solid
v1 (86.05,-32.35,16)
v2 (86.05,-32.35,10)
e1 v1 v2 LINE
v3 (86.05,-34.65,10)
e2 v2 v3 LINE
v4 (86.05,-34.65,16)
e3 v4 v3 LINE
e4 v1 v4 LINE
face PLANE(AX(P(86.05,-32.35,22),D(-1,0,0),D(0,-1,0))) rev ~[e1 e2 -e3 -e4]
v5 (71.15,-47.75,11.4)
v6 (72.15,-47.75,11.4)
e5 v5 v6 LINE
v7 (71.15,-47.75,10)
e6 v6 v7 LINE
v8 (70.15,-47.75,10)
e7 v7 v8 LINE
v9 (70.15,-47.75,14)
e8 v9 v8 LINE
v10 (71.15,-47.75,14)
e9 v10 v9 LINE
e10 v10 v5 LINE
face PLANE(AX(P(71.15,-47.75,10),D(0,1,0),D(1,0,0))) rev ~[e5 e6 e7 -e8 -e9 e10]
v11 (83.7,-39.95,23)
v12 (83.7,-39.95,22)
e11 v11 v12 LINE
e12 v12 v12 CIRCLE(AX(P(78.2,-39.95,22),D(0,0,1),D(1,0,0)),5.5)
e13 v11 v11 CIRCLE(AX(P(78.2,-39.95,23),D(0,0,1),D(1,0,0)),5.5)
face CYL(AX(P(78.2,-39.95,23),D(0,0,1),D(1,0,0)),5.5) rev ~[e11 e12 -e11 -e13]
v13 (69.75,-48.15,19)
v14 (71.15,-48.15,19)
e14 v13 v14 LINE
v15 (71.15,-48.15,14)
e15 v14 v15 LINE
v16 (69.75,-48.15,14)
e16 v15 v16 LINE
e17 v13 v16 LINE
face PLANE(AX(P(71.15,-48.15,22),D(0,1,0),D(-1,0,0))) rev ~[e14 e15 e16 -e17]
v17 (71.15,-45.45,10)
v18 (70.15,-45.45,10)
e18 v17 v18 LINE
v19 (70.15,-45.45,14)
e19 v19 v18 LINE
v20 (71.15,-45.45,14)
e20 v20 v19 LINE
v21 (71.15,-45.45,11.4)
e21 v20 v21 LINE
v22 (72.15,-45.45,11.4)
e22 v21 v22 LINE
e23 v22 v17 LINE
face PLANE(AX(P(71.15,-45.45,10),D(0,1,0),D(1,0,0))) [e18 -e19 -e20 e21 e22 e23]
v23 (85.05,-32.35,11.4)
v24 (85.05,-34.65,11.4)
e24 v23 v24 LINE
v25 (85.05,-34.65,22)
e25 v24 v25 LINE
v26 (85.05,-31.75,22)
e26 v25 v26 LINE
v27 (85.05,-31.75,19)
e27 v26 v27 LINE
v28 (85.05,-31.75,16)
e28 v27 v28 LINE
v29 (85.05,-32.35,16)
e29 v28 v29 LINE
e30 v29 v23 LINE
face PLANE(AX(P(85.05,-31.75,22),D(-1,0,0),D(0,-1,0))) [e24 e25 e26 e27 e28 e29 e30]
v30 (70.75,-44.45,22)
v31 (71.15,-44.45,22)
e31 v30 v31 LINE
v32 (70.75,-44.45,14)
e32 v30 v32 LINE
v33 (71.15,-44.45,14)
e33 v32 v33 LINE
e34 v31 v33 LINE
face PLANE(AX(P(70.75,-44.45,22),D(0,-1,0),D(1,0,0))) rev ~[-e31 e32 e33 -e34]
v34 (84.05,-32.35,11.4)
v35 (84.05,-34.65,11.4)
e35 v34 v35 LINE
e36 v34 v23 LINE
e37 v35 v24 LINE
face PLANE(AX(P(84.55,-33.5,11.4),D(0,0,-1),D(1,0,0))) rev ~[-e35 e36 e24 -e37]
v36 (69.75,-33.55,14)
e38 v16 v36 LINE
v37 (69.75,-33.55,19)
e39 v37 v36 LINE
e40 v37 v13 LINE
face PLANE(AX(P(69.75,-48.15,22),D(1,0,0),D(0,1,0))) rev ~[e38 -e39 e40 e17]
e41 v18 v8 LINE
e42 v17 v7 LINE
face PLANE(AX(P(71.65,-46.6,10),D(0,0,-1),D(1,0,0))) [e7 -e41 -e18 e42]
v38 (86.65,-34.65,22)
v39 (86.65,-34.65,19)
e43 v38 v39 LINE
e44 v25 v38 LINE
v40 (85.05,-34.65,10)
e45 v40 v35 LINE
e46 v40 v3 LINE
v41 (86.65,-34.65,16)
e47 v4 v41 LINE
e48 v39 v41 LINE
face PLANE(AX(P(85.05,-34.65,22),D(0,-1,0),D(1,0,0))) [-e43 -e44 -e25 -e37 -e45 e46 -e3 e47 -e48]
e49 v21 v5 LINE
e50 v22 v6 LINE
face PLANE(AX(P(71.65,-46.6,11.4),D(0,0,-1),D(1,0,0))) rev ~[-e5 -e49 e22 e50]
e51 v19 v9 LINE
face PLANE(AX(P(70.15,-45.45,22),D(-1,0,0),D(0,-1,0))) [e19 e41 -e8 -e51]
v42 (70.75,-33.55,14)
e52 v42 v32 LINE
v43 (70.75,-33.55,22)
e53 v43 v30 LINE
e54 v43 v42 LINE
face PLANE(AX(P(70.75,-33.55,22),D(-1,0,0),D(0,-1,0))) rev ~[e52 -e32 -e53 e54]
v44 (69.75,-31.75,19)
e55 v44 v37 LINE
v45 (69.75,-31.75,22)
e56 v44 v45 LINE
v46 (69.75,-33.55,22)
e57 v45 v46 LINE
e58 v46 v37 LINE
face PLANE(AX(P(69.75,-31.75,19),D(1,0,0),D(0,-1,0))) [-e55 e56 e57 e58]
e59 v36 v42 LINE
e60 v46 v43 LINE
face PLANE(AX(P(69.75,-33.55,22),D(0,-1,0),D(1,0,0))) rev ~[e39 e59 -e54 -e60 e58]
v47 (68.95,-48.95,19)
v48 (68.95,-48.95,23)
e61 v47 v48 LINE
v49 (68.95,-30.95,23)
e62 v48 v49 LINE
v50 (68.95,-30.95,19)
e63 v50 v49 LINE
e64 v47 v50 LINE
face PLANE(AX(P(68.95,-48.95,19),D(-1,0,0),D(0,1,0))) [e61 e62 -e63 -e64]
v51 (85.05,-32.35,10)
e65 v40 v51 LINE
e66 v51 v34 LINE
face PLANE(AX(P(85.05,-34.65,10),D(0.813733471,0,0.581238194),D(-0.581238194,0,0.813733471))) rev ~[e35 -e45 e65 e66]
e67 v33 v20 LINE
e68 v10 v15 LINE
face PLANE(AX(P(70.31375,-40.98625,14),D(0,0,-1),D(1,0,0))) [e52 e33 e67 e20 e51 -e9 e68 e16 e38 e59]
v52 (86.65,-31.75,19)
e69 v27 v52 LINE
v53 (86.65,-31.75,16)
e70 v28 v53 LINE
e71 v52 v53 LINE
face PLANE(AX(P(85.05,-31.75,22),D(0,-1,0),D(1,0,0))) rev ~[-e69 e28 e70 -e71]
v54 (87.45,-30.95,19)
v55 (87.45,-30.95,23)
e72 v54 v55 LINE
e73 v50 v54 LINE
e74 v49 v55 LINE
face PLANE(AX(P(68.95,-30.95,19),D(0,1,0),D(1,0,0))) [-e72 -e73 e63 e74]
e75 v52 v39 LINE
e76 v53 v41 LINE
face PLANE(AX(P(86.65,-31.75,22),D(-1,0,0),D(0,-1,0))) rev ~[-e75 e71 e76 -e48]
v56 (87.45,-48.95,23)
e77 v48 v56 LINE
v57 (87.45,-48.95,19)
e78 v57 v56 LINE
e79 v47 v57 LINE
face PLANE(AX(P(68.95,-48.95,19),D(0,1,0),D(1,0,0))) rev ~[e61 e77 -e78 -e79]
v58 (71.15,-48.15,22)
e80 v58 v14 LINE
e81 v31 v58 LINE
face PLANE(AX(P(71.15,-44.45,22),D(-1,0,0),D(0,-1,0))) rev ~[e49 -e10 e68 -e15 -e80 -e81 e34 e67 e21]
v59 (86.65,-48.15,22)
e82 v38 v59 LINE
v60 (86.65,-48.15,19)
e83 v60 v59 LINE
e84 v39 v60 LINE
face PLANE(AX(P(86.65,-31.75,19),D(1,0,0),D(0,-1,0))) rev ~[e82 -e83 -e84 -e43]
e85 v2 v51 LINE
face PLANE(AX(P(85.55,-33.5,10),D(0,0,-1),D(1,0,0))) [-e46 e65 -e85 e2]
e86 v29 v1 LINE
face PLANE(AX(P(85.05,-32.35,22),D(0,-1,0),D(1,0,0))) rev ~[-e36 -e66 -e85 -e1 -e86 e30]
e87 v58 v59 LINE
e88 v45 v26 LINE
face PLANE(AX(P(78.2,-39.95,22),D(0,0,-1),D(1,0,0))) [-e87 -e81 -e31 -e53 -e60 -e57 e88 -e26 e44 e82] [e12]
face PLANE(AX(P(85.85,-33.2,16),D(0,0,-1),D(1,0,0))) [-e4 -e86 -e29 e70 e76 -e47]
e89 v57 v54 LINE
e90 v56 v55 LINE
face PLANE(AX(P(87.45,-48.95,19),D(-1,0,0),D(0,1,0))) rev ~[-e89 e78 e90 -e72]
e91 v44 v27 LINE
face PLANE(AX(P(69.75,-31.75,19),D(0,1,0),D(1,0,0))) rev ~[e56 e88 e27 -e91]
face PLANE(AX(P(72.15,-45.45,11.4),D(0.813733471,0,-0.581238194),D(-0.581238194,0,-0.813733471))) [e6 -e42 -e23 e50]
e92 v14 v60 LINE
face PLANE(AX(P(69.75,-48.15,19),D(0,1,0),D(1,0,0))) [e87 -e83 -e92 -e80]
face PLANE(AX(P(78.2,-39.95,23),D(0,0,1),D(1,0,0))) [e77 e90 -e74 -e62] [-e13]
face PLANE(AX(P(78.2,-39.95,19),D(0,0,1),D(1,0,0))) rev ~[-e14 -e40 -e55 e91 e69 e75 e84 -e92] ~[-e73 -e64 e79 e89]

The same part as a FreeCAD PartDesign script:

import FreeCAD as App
import Part
import Sketcher

doc = App.newDocument("Part")
body = doc.addObject("PartDesign::Body", "Body")

sketch1 = body.newObject("Sketcher::SketchObject", "Sketch")
sketch1.AttachmentSupport = (doc.getObject("XY_Plane"), [""])
sketch1.MapMode = "FlatFace"
sketch1.AttachmentOffset = App.Placement(App.Vector(0, 0, 23), App.Rotation())
sketch1.addGeometry([
    Part.LineSegment(App.Vector(69, -31, 0), App.Vector(69, -49, 0)),
    Part.LineSegment(App.Vector(69, -49, 0), App.Vector(87, -49, 0)),
    Part.LineSegment(App.Vector(87, -49, 0), App.Vector(87, -31, 0)),
    Part.LineSegment(App.Vector(87, -31, 0), App.Vector(69, -31, 0)),
], False)
sketch1.addConstraint([
    Sketcher.Constraint("Coincident", 0, 2, 1, 1),
    Sketcher.Constraint("Coincident", 1, 2, 2, 1),
    Sketcher.Constraint("Coincident", 2, 2, 3, 1),
    Sketcher.Constraint("Coincident", 3, 2, 0, 1),
    Sketcher.Constraint("Vertical", 0),
    Sketcher.Constraint("Horizontal", 1),
    Sketcher.Constraint("Vertical", 2),
    Sketcher.Constraint("Horizontal", 3),
    Sketcher.Constraint("DistanceY", 0, 2, 0, 1, 18.0),
    Sketcher.Constraint("DistanceX", 1, 1, 1, 2, 18.5),
    Sketcher.Constraint("DistanceX", -1, 1, 0, 2, 68.95),
    Sketcher.Constraint("DistanceY", 0, 2, -1, 1, 48.95),
])
pad1 = body.newObject("PartDesign::Pad", "Pad")
pad1.Profile = sketch1
pad1.Length = 4

sketch2 = body.newObject("Sketcher::SketchObject", "Sketch001")
sketch2.AttachmentSupport = (doc.getObject("XY_Plane"), [""])
sketch2.MapMode = "FlatFace"
sketch2.AttachmentOffset = App.Placement(App.Vector(0, 0, 23), App.Rotation())
sketch2.addGeometry([
    Part.LineSegment(App.Vector(70, -48, 0), App.Vector(70, -32, 0)),
    Part.LineSegment(App.Vector(70, -32, 0), App.Vector(87, -32, 0)),
    Part.LineSegment(App.Vector(87, -32, 0), App.Vector(87, -48, 0)),
    Part.LineSegment(App.Vector(87, -48, 0), App.Vector(70, -48, 0)),
], False)
sketch2.addConstraint([
    Sketcher.Constraint("Coincident", 0, 2, 1, 1),
    Sketcher.Constraint("Coincident", 1, 2, 2, 1),
    Sketcher.Constraint("Coincident", 2, 2, 3, 1),
    Sketcher.Constraint("Coincident", 3, 2, 0, 1),
    Sketcher.Constraint("Vertical", 0),
    Sketcher.Constraint("Horizontal", 1),
    Sketcher.Constraint("Vertical", 2),
    Sketcher.Constraint("Horizontal", 3),
    Sketcher.Constraint("DistanceX", 1, 1, 1, 2, 16.9),
    Sketcher.Constraint("DistanceY", 0, 1, 0, 2, 16.4),
    Sketcher.Constraint("DistanceX", -1, 1, 0, 2, 69.75),
    Sketcher.Constraint("DistanceY", 0, 2, -1, 1, 31.75),
])
pocket1 = body.newObject("PartDesign::Pocket", "Pocket")
pocket1.Profile = sketch2
pocket1.Length = 3
pocket1.Reversed = True

sketch3 = body.newObject("Sketcher::SketchObject", "Sketch002")
sketch3.AttachmentSupport = (doc.getObject("XY_Plane"), [""])
sketch3.MapMode = "FlatFace"
sketch3.AttachmentOffset = App.Placement(App.Vector(0, 0, 27), App.Rotation())
sketch3.addGeometry(Part.Circle(App.Vector(78, -40, 0), App.Vector(0, 0, 1), 6), False)
sketch3.addConstraint([
    Sketcher.Constraint("Diameter", 0, 11.0),
    Sketcher.Constraint("DistanceX", -1, 1, 0, 3, 78.2),
    Sketcher.Constraint("DistanceY", 0, 3, -1, 1, 39.95),
])
pocket2 = body.newObject("PartDesign::Pocket", "Pocket001")
pocket2.Profile = sketch3
pocket2.Length = 5

sketch4 = body.newObject("Sketcher::SketchObject", "Sketch003")
sketch4.AttachmentSupport = (doc.getObject("XY_Plane"), [""])
sketch4.MapMode = "FlatFace"
sketch4.AttachmentOffset = App.Placement(App.Vector(0, 0, 26), App.Rotation())
sketch4.addGeometry([
    Part.LineSegment(App.Vector(85, -34.6, 0), App.Vector(85, -32.4, 0)),
    Part.LineSegment(App.Vector(85, -32.4, 0), App.Vector(86, -32.4, 0)),
    Part.LineSegment(App.Vector(86, -32.4, 0), App.Vector(86, -34.6, 0)),
    Part.LineSegment(App.Vector(86, -34.6, 0), App.Vector(85, -34.6, 0)),
    Part.LineSegment(App.Vector(70.2, -47.8, 0), App.Vector(70.2, -45.5, 0)),
    Part.LineSegment(App.Vector(70.2, -45.5, 0), App.Vector(71.2, -45.5, 0)),
    Part.LineSegment(App.Vector(71.2, -45.5, 0), App.Vector(71.2, -47.8, 0)),
    Part.LineSegment(App.Vector(71.2, -47.8, 0), App.Vector(70.2, -47.8, 0)),
], False)
sketch4.addConstraint([
    Sketcher.Constraint("Coincident", 0, 2, 1, 1),
    Sketcher.Constraint("Coincident", 1, 2, 2, 1),
    Sketcher.Constraint("Coincident", 2, 2, 3, 1),
    Sketcher.Constraint("Coincident", 3, 2, 0, 1),
    Sketcher.Constraint("Coincident", 4, 2, 5, 1),
    Sketcher.Constraint("Coincident", 5, 2, 6, 1),
    Sketcher.Constraint("Coincident", 6, 2, 7, 1),
    Sketcher.Constraint("Coincident", 7, 2, 4, 1),
    Sketcher.Constraint("Vertical", 0),
    Sketcher.Constraint("Horizontal", 1),
    Sketcher.Constraint("Vertical", 2),
    Sketcher.Constraint("Horizontal", 3),
    Sketcher.Constraint("Vertical", 4),
    Sketcher.Constraint("Horizontal", 5),
    Sketcher.Constraint("Vertical", 6),
    Sketcher.Constraint("Horizontal", 7),
    Sketcher.Constraint("Equal", 3, 5),
    Sketcher.Constraint("Equal", 2, 4),
    Sketcher.Constraint("DistanceX", 1, 1, 1, 2, 1.0),
    Sketcher.Constraint("DistanceY", 0, 1, 0, 2, 2.3),
    Sketcher.Constraint("DistanceX", 4, 2, 3, 2, 14.9),
    Sketcher.Constraint("DistanceY", 4, 2, 3, 2, 10.8),
    Sketcher.Constraint("DistanceX", -1, 1, 0, 2, 85.05),
    Sketcher.Constraint("DistanceY", 0, 2, -1, 1, 32.35),
])
pad2 = body.newObject("PartDesign::Pad", "Pad001")
pad2.Profile = sketch4
pad2.Length = 12
pad2.Reversed = True

sketch5 = body.newObject("Sketcher::SketchObject", "Sketch004")
sketch5.AttachmentSupport = (doc.getObject("XY_Plane"), [""])
sketch5.MapMode = "FlatFace"
sketch5.AttachmentOffset = App.Placement(App.Vector(0, 0, 14), App.Rotation())
sketch5.addGeometry([
    Part.LineSegment(App.Vector(71.2, -47.8, 0), App.Vector(71.2, -45.5, 0)),
    Part.LineSegment(App.Vector(71.2, -45.5, 0), App.Vector(72.2, -45.5, 0)),
    Part.LineSegment(App.Vector(72.2, -45.5, 0), App.Vector(72.2, -47.8, 0)),
    Part.LineSegment(App.Vector(72.2, -47.8, 0), App.Vector(71.2, -47.8, 0)),
    Part.LineSegment(App.Vector(84, -34.6, 0), App.Vector(84, -32.4, 0)),
    Part.LineSegment(App.Vector(84, -32.4, 0), App.Vector(85, -32.4, 0)),
    Part.LineSegment(App.Vector(85, -32.4, 0), App.Vector(85, -34.6, 0)),
    Part.LineSegment(App.Vector(85, -34.6, 0), App.Vector(84, -34.6, 0)),
], False)
sketch5.addConstraint([
    Sketcher.Constraint("Coincident", 0, 2, 1, 1),
    Sketcher.Constraint("Coincident", 1, 2, 2, 1),
    Sketcher.Constraint("Coincident", 2, 2, 3, 1),
    Sketcher.Constraint("Coincident", 3, 2, 0, 1),
    Sketcher.Constraint("Coincident", 4, 2, 5, 1),
    Sketcher.Constraint("Coincident", 5, 2, 6, 1),
    Sketcher.Constraint("Coincident", 6, 2, 7, 1),
    Sketcher.Constraint("Coincident", 7, 2, 4, 1),
    Sketcher.Constraint("Vertical", 0),
    Sketcher.Constraint("Horizontal", 1),
    Sketcher.Constraint("Vertical", 2),
    Sketcher.Constraint("Horizontal", 3),
    Sketcher.Constraint("Vertical", 4),
    Sketcher.Constraint("Horizontal", 5),
    Sketcher.Constraint("Vertical", 6),
    Sketcher.Constraint("Horizontal", 7),
    Sketcher.Constraint("Equal", 3, 5),
    Sketcher.Constraint("Equal", 2, 4),
    Sketcher.Constraint("DistanceX", 1, 1, 1, 2, 1.0),
    Sketcher.Constraint("DistanceY", 0, 1, 0, 2, 2.3),
    Sketcher.Constraint("DistanceX", 1, 2, 4, 2, 11.9),
    Sketcher.Constraint("DistanceY", 1, 2, 4, 2, 13.1),
    Sketcher.Constraint("DistanceX", -1, 1, 0, 2, 71.15),
    Sketcher.Constraint("DistanceY", 0, 2, -1, 1, 45.45),
])
pad3 = body.newObject("PartDesign::Pad", "Pad002")
pad3.Profile = sketch5
pad3.Length = 1.4

sketch6 = body.newObject("Sketcher::SketchObject", "Sketch005")
sketch6.AttachmentSupport = (doc.getObject("XZ_Plane"), [""])
sketch6.MapMode = "FlatFace"
sketch6.AttachmentOffset = App.Placement(App.Vector(0, 0, 45.45), App.Rotation())
sketch6.addGeometry([
    Part.LineSegment(App.Vector(71.2, 14, 0), App.Vector(72.2, 15.4, 0)),
    Part.LineSegment(App.Vector(72.2, 15.4, 0), App.Vector(72.2, 14, 0)),
    Part.LineSegment(App.Vector(72.2, 14, 0), App.Vector(71.2, 14, 0)),
], False)
sketch6.addConstraint([
    Sketcher.Constraint("Coincident", 0, 2, 1, 1),
    Sketcher.Constraint("Coincident", 1, 2, 2, 1),
    Sketcher.Constraint("Coincident", 2, 2, 0, 1),
    Sketcher.Constraint("Vertical", 1),
    Sketcher.Constraint("Horizontal", 2),
    Sketcher.Constraint("DistanceX", 2, 2, 2, 1, 1.0),
    Sketcher.Constraint("DistanceY", 1, 2, 1, 1, 1.4),
    Sketcher.Constraint("DistanceY", -1, 1, 1, 2, 14.0),
    Sketcher.Constraint("DistanceX", -1, 1, 0, 2, 72.15),
])
pocket3 = body.newObject("PartDesign::Pocket", "Pocket002")
pocket3.Profile = sketch6
pocket3.Length = 2.3
pocket3.Reversed = True

sketch7 = body.newObject("Sketcher::SketchObject", "Sketch006")
sketch7.AttachmentSupport = (doc.getObject("XZ_Plane"), [""])
sketch7.MapMode = "FlatFace"
sketch7.AttachmentOffset = App.Placement(App.Vector(0, 0, 34.65), App.Rotation())
sketch7.addGeometry([
    Part.LineSegment(App.Vector(85, 14, 0), App.Vector(84, 15.4, 0)),
    Part.LineSegment(App.Vector(84, 15.4, 0), App.Vector(84, 14, 0)),
    Part.LineSegment(App.Vector(84, 14, 0), App.Vector(85, 14, 0)),
], False)
sketch7.addConstraint([
    Sketcher.Constraint("Coincident", 0, 2, 1, 1),
    Sketcher.Constraint("Coincident", 1, 2, 2, 1),
    Sketcher.Constraint("Coincident", 2, 2, 0, 1),
    Sketcher.Constraint("Vertical", 1),
    Sketcher.Constraint("Horizontal", 2),
    Sketcher.Constraint("DistanceX", 2, 1, 2, 2, 1.0),
    Sketcher.Constraint("DistanceY", 1, 2, 1, 1, 1.4),
    Sketcher.Constraint("DistanceY", -1, 1, 1, 2, 14.0),
    Sketcher.Constraint("DistanceX", -1, 1, 0, 2, 84.05),
])
pocket4 = body.newObject("PartDesign::Pocket", "Pocket003")
pocket4.Profile = sketch7
pocket4.Length = 2.3

sketch8 = body.newObject("Sketcher::SketchObject", "Sketch007")
sketch8.AttachmentSupport = (doc.getObject("XY_Plane"), [""])
sketch8.MapMode = "FlatFace"
sketch8.AttachmentOffset = App.Placement(App.Vector(0, 0, 26), App.Rotation())
sketch8.addGeometry([
    Part.LineSegment(App.Vector(71.15, -48.15, 0), App.Vector(69.75, -48.15, 0)),
    Part.LineSegment(App.Vector(69.75, -48.15, 0), App.Vector(69.75, -33.55, 0)),
    Part.LineSegment(App.Vector(69.75, -33.55, 0), App.Vector(70.75, -33.55, 0)),
    Part.LineSegment(App.Vector(70.75, -33.55, 0), App.Vector(70.75, -44.45, 0)),
    Part.LineSegment(App.Vector(70.75, -44.45, 0), App.Vector(71.15, -44.45, 0)),
    Part.LineSegment(App.Vector(71.15, -44.45, 0), App.Vector(71.15, -48.15, 0)),
], False)
sketch8.addConstraint([
    Sketcher.Constraint("Coincident", 0, 2, 1, 1),
    Sketcher.Constraint("Coincident", 1, 2, 2, 1),
    Sketcher.Constraint("Coincident", 2, 2, 3, 1),
    Sketcher.Constraint("Coincident", 3, 2, 4, 1),
    Sketcher.Constraint("Coincident", 4, 2, 5, 1),
    Sketcher.Constraint("Coincident", 5, 2, 0, 1),
    Sketcher.Constraint("Horizontal", 0),
    Sketcher.Constraint("Vertical", 1),
    Sketcher.Constraint("Horizontal", 2),
    Sketcher.Constraint("Vertical", 3),
    Sketcher.Constraint("Horizontal", 4),
    Sketcher.Constraint("Vertical", 5),
    Sketcher.Constraint("DistanceX", 2, 1, 2, 2, 1.0),
    Sketcher.Constraint("DistanceX", 0, 2, 0, 1, 1.4),
    Sketcher.Constraint("DistanceY", 1, 1, 1, 2, 14.6),
    Sketcher.Constraint("DistanceY", 3, 2, 3, 1, 10.9),
    Sketcher.Constraint("DistanceX", -1, 1, 0, 2, 69.75),
    Sketcher.Constraint("DistanceY", 0, 2, -1, 1, 48.15),
])
pad4 = body.newObject("PartDesign::Pad", "Pad003")
pad4.Profile = sketch8
pad4.Length = 8
pad4.Reversed = True

sketch9 = body.newObject("Sketcher::SketchObject", "Sketch008")
sketch9.AttachmentSupport = (doc.getObject("XY_Plane"), [""])
sketch9.MapMode = "FlatFace"
sketch9.AttachmentOffset = App.Placement(App.Vector(0, 0, 26), App.Rotation())
sketch9.addGeometry([
    Part.LineSegment(App.Vector(85, -34.6, 0), App.Vector(85, -31.8, 0)),
    Part.LineSegment(App.Vector(85, -31.8, 0), App.Vector(86.7, -31.8, 0)),
    Part.LineSegment(App.Vector(86.7, -31.8, 0), App.Vector(86.7, -34.6, 0)),
    Part.LineSegment(App.Vector(86.7, -34.6, 0), App.Vector(85, -34.6, 0)),
], False)
sketch9.addConstraint([
    Sketcher.Constraint("Coincident", 0, 2, 1, 1),
    Sketcher.Constraint("Coincident", 1, 2, 2, 1),
    Sketcher.Constraint("Coincident", 2, 2, 3, 1),
    Sketcher.Constraint("Coincident", 3, 2, 0, 1),
    Sketcher.Constraint("Vertical", 0),
    Sketcher.Constraint("Horizontal", 1),
    Sketcher.Constraint("Vertical", 2),
    Sketcher.Constraint("Horizontal", 3),
    Sketcher.Constraint("DistanceX", 1, 1, 1, 2, 1.6),
    Sketcher.Constraint("DistanceY", 0, 1, 0, 2, 2.9),
    Sketcher.Constraint("DistanceX", -1, 1, 0, 2, 85.05),
    Sketcher.Constraint("DistanceY", 0, 2, -1, 1, 31.75),
])
pad5 = body.newObject("PartDesign::Pad", "Pad004")
pad5.Profile = sketch9
pad5.Length = 6
pad5.Reversed = True
body2 = doc.addObject("PartDesign::Body", "Body001")
doc.recompute()

body.Placement = App.Placement(App.Vector(0, 0, -4), App.Rotation(App.Vector(0, 0, 1), 0))
boolean = body2.newObject("PartDesign::Boolean", "Boolean")
boolean.Type = "Fuse"
boolean.addObjects([body])

doc.recompute()
